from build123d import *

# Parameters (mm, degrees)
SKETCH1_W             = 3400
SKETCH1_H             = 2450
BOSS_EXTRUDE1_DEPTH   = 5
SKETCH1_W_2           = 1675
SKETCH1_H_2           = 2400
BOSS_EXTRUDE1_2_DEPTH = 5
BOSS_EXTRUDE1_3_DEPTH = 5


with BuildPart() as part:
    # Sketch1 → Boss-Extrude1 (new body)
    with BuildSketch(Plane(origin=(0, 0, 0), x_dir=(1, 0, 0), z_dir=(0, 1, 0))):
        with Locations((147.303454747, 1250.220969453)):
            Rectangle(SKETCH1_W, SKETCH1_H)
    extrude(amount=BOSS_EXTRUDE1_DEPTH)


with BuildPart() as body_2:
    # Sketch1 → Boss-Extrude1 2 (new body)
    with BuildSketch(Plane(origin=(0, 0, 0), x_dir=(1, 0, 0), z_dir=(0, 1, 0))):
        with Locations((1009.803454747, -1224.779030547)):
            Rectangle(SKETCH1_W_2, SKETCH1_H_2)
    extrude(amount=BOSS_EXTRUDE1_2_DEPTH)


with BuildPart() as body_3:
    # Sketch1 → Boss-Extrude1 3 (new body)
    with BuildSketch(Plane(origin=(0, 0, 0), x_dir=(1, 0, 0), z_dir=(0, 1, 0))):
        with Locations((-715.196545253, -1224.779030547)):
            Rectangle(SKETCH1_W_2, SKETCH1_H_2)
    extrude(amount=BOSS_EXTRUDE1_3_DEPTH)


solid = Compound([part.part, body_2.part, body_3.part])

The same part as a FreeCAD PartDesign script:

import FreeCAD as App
import Part
import Sketcher

V = App.Vector

doc = App.newDocument("Part")
params = doc.addObject("Spreadsheet::Sheet", "Params")
for row, (alias, value) in enumerate([
    ("sketch1_width", "3400 mm"),
    ("sketch1_height", "2450 mm"),
    ("pad1_length", "5 mm"),
    ("sketch2_width", "1675 mm"),
    ("sketch2_height", "2400 mm"),
    ("pad2_length", "5 mm"),
    ("sketch3_width", "1675 mm"),
    ("sketch3_height", "2400 mm"),
    ("pad3_length", "5 mm"),
], start=1):
    params.set(f"A{row}", alias)
    params.set(f"B{row}", "=" + value)
    params.setAlias(f"B{row}", alias)

body = doc.addObject("PartDesign::Body", "Body")

# Sketch on XZ plane
sketch1 = doc.addObject("Sketcher::SketchObject", "Sketch")
body.addObject(sketch1)
sketch1.AttachmentSupport = (doc.XZ_Plane, [""])
sketch1.MapMode = "FlatFace"
sketch1.addGeometry([
    Part.LineSegment(V(-1552.696545, -2475.220969, 0), V(-1552.696545, -25.220969, 0)),
    Part.LineSegment(V(-1552.696545, -25.220969, 0), V(1847.303455, -25.220969, 0)),
    Part.LineSegment(V(1847.303455, -25.220969, 0), V(1847.303455, -2475.220969, 0)),
    Part.LineSegment(V(1847.303455, -2475.220969, 0), V(-1552.696545, -2475.220969, 0)),
], False)
sketch1.addConstraint([
    Sketcher.Constraint("Coincident", 0, 2, 1, 1),
    Sketcher.Constraint("Coincident", 1, 2, 2, 1),
    Sketcher.Constraint("Coincident", 2, 2, 3, 1),
    Sketcher.Constraint("Coincident", 3, 2, 0, 1),
    Sketcher.Constraint("Vertical", 0),
    Sketcher.Constraint("Horizontal", 1),
    Sketcher.Constraint("Vertical", 2),
    Sketcher.Constraint("Horizontal", 3),
    Sketcher.Constraint("DistanceX", 1, 1, 1, 2, 3400.0),
    Sketcher.Constraint("DistanceY", 0, 1, 0, 2, 2450.0),
    Sketcher.Constraint("DistanceY", 0, 2, -1, 1, 25.220969),
    Sketcher.Constraint("DistanceX", 0, 2, -1, 1, 1552.696545),
])
sketch1.setExpression("Constraints[8]", "Params.sketch1_width")
sketch1.setExpression("Constraints[9]", "Params.sketch1_height")
pad1 = doc.addObject("PartDesign::Pad", "Pad")
body.addObject(pad1)
pad1.Profile = sketch1
pad1.setExpression("Length", "Params.pad1_length")
pad1.Reversed = True
body2 = doc.addObject("PartDesign::Body", "Body001")

# Sketch on XZ plane
sketch2 = doc.addObject("Sketcher::SketchObject", "Sketch001")
body2.addObject(sketch2)
sketch2.AttachmentSupport = (doc.getObject("XZ_Plane001"), [""])
sketch2.MapMode = "FlatFace"
sketch2.addGeometry([
    Part.LineSegment(V(172.303455, 24.779031, 0), V(172.303455, 2424.779031, 0)),
    Part.LineSegment(V(172.303455, 2424.779031, 0), V(1847.303455, 2424.779031, 0)),
    Part.LineSegment(V(1847.303455, 2424.779031, 0), V(1847.303455, 24.779031, 0)),
    Part.LineSegment(V(1847.303455, 24.779031, 0), V(172.303455, 24.779031, 0)),
], False)
sketch2.addConstraint([
    Sketcher.Constraint("Coincident", 0, 2, 1, 1),
    Sketcher.Constraint("Coincident", 1, 2, 2, 1),
    Sketcher.Constraint("Coincident", 2, 2, 3, 1),
    Sketcher.Constraint("Coincident", 3, 2, 0, 1),
    Sketcher.Constraint("Vertical", 0),
    Sketcher.Constraint("Horizontal", 1),
    Sketcher.Constraint("Vertical", 2),
    Sketcher.Constraint("Horizontal", 3),
    Sketcher.Constraint("DistanceX", 1, 1, 1, 2, 1675.0),
    Sketcher.Constraint("DistanceY", 0, 1, 0, 2, 2400.0),
    Sketcher.Constraint("DistanceY", -1, 1, 0, 2, 2424.779031),
    Sketcher.Constraint("DistanceX", -1, 1, 0, 2, 172.303455),
])
sketch2.setExpression("Constraints[8]", "Params.sketch2_width")
sketch2.setExpression("Constraints[9]", "Params.sketch2_height")
pad2 = doc.addObject("PartDesign::Pad", "Pad001")
body2.addObject(pad2)
pad2.Profile = sketch2
pad2.setExpression("Length", "Params.pad2_length")
pad2.Reversed = True
body3 = doc.addObject("PartDesign::Body", "Body002")

# Sketch on XZ plane
sketch3 = doc.addObject("Sketcher::SketchObject", "Sketch002")
body3.addObject(sketch3)
sketch3.AttachmentSupport = (doc.getObject("XZ_Plane002"), [""])
sketch3.MapMode = "FlatFace"
sketch3.addGeometry([
    Part.LineSegment(V(-1552.696545, 24.779031, 0), V(-1552.696545, 2424.779031, 0)),
    Part.LineSegment(V(-1552.696545, 2424.779031, 0), V(122.303455, 2424.779031, 0)),
    Part.LineSegment(V(122.303455, 2424.779031, 0), V(122.303455, 24.779031, 0)),
    Part.LineSegment(V(122.303455, 24.779031, 0), V(-1552.696545, 24.779031, 0)),
], False)
sketch3.addConstraint([
    Sketcher.Constraint("Coincident", 0, 2, 1, 1),
    Sketcher.Constraint("Coincident", 1, 2, 2, 1),
    Sketcher.Constraint("Coincident", 2, 2, 3, 1),
    Sketcher.Constraint("Coincident", 3, 2, 0, 1),
    Sketcher.Constraint("Vertical", 0),
    Sketcher.Constraint("Horizontal", 1),
    Sketcher.Constraint("Vertical", 2),
    Sketcher.Constraint("Horizontal", 3),
    Sketcher.Constraint("DistanceX", 1, 1, 1, 2, 1675.0),
    Sketcher.Constraint("DistanceY", 0, 1, 0, 2, 2400.0),
    Sketcher.Constraint("DistanceY", -1, 1, 0, 2, 2424.779031),
    Sketcher.Constraint("DistanceX", 0, 2, -1, 1, 1552.696545),
])
sketch3.setExpression("Constraints[8]", "Params.sketch3_width")
sketch3.setExpression("Constraints[9]", "Params.sketch3_height")
pad3 = doc.addObject("PartDesign::Pad", "Pad002")
body3.addObject(pad3)
pad3.Profile = sketch3
pad3.setExpression("Length", "Params.pad3_length")
pad3.Reversed = True

doc.recompute()
